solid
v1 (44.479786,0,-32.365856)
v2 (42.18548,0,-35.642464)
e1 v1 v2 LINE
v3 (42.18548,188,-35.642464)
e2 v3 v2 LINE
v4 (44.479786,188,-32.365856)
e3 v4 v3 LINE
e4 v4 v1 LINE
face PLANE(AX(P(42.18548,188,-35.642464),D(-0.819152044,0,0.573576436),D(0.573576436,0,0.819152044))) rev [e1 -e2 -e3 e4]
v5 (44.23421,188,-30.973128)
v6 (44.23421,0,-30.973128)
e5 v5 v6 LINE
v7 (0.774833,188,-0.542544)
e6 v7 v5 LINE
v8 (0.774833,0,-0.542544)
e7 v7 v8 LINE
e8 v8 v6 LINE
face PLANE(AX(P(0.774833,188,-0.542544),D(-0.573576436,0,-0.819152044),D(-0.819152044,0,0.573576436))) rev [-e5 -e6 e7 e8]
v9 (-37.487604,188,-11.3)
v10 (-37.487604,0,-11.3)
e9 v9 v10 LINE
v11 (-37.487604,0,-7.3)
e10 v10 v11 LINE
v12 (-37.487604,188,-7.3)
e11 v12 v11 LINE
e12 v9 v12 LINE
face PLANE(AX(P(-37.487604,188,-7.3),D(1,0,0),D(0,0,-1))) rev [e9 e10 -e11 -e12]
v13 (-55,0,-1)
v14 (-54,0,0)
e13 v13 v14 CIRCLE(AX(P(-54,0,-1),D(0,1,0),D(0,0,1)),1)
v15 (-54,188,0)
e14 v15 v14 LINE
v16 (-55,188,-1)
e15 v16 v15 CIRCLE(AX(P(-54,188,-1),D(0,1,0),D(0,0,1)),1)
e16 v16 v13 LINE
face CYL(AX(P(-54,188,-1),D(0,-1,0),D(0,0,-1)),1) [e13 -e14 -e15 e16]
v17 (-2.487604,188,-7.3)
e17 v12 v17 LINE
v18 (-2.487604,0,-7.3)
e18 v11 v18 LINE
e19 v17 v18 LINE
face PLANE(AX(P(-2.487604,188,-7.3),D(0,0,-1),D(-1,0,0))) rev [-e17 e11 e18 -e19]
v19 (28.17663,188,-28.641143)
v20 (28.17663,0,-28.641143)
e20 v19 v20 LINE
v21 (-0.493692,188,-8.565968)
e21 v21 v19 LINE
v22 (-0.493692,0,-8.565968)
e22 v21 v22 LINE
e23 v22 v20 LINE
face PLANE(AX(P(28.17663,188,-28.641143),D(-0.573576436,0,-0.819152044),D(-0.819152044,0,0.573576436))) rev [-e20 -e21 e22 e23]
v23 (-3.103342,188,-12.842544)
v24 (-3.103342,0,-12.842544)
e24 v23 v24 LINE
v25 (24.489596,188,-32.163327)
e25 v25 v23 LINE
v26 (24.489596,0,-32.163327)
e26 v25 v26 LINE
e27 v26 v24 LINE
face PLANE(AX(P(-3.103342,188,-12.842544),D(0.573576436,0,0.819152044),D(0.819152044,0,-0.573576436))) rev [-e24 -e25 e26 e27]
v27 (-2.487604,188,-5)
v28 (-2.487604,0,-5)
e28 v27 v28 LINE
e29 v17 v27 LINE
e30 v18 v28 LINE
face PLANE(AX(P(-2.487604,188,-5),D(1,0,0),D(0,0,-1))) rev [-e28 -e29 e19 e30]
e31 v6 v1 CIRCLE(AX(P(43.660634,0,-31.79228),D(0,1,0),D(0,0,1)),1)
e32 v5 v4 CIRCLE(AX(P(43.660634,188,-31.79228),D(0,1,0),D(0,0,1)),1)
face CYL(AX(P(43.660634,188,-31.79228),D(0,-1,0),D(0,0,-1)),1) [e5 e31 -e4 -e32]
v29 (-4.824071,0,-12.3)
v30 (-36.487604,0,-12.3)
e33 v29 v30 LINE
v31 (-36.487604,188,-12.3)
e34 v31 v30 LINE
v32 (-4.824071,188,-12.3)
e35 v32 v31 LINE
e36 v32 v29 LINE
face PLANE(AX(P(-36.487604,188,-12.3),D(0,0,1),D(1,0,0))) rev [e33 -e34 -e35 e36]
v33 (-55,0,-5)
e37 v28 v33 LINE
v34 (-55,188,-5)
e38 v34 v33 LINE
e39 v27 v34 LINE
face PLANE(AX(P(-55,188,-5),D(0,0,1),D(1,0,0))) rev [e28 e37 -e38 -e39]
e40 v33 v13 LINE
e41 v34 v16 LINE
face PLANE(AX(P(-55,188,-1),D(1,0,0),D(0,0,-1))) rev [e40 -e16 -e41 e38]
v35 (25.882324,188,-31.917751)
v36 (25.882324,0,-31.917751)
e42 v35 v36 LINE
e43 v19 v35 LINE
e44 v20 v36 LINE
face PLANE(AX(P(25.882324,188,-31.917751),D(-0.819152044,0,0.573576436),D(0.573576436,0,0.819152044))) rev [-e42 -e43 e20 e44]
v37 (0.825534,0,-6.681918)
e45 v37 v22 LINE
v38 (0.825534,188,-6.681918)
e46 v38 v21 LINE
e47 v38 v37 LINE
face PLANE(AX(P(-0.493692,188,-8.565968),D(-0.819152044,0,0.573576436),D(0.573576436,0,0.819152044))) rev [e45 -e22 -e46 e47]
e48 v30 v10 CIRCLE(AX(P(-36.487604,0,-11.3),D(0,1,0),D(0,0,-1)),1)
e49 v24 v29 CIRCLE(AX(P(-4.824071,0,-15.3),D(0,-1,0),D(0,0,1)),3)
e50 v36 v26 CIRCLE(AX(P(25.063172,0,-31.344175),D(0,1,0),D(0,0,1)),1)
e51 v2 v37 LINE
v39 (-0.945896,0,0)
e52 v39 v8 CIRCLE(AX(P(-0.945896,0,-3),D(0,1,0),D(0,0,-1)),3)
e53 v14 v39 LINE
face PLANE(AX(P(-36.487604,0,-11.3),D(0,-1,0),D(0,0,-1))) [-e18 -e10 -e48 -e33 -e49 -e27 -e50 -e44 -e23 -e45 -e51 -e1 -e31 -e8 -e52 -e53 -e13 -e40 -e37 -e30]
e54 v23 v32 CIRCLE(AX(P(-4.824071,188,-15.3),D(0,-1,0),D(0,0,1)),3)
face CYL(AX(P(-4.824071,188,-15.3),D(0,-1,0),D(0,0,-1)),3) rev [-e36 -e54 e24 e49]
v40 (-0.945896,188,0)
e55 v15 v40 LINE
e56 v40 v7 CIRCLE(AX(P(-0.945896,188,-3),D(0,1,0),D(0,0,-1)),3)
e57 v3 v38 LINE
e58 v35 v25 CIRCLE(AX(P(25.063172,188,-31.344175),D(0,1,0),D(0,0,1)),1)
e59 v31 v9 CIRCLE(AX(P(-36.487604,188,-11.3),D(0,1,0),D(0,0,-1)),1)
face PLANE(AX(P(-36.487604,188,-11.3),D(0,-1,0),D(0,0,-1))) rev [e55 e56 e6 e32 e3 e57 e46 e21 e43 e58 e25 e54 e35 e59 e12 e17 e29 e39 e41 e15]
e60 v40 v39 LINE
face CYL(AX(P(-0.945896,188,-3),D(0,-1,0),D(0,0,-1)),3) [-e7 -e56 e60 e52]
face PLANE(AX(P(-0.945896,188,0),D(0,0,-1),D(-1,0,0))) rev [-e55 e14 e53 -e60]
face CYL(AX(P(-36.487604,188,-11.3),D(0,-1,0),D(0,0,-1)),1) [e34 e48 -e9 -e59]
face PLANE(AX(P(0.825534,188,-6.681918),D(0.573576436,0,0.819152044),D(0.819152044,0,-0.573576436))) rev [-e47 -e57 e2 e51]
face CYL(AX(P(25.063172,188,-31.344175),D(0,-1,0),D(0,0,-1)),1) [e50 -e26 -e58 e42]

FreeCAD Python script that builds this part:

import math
import FreeCAD as App
import Part
import Sketcher

V = App.Vector
Q = App.Units.Quantity

doc = App.newDocument("Part")
body = doc.addObject("PartDesign::Body", "Body")

sketch1 = body.newObject("Sketcher::SketchObject", "Sketch")
sketch1.AttachmentSupport = (doc.getObject("XZ_Plane"), [""])
sketch1.MapMode = "FlatFace"
sketch1.addGeometry(Part.LineSegment(V(-54, 0, 0), V(-0.9, 0, 0)), False)
sketch1.addGeometry(Part.ArcOfCircle(Part.Circle(V(-0.9, -3, 0), V(0, 0, 1), 3), math.radians(55), math.radians(90)), False)
sketch1.addGeometry(Part.LineSegment(V(0.8, -0.5, 0), V(44.2, -31, 0)), False)
sketch1.addGeometry(Part.ArcOfCircle(Part.Circle(V(43.7, -31.8, 0), V(0, 0, 1), 1), math.radians(-35), math.radians(55)), False)
sketch1.addGeometry(Part.LineSegment(V(44.5, -32.4, 0), V(42.2, -35.6, 0)), False)
sketch1.addGeometry(Part.LineSegment(V(42.2, -35.6, 0), V(0.8, -6.7, 0)), False)
sketch1.addGeometry(Part.LineSegment(V(0.8, -6.7, 0), V(-0.5, -8.6, 0)), False)
sketch1.addGeometry(Part.LineSegment(V(-0.5, -8.6, 0), V(28.2, -28.6, 0)), False)
sketch1.addGeometry(Part.LineSegment(V(28.2, -28.6, 0), V(25.9, -31.9, 0)), False)
sketch1.addGeometry(Part.ArcOfCircle(Part.Circle(V(25.1, -31.3, 0), V(0, 0, 1), 1), math.radians(-125), math.radians(-35)), False)
sketch1.addGeometry(Part.LineSegment(V(24.5, -32.2, 0), V(-3.1, -12.8, 0)), False)
sketch1.addGeometry(Part.ArcOfCircle(Part.Circle(V(-4.8, -15.3, 0), V(0, 0, 1), 3), math.radians(55), math.radians(90)), False)
sketch1.addGeometry(Part.LineSegment(V(-4.8, -12.3, 0), V(-36.5, -12.3, 0)), False)
sketch1.addGeometry(Part.ArcOfCircle(Part.Circle(V(-36.5, -11.3, 0), V(0, 0, 1), 1), math.radians(-180), math.radians(-90)), False)
sketch1.addGeometry(Part.LineSegment(V(-37.5, -11.3, 0), V(-37.5, -7.3, 0)), False)
sketch1.addGeometry(Part.LineSegment(V(-37.5, -7.3, 0), V(-2.5, -7.3, 0)), False)
sketch1.addGeometry(Part.LineSegment(V(-2.5, -7.3, 0), V(-2.5, -5, 0)), False)
sketch1.addGeometry(Part.LineSegment(V(-2.5, -5, 0), V(-55, -5, 0)), False)
sketch1.addGeometry(Part.LineSegment(V(-55, -5, 0), V(-55, -1, 0)), False)
sketch1.addGeometry(Part.ArcOfCircle(Part.Circle(V(-54, -1, 0), V(0, 0, 1), 1), math.radians(90), math.radians(180)), False)
sketch1.addConstraint(Sketcher.Constraint("Tangent", 0, 2, 1, 2))
sketch1.addConstraint(Sketcher.Constraint("Tangent", 1, 1, 2, 1))
sketch1.addConstraint(Sketcher.Constraint("Tangent", 2, 2, 3, 2))
sketch1.addConstraint(Sketcher.Constraint("Tangent", 3, 1, 4, 1))
sketch1.addConstraint(Sketcher.Constraint("Coincident", 4, 2, 5, 1))
sketch1.addConstraint(Sketcher.Constraint("Coincident", 5, 2, 6, 1))
sketch1.addConstraint(Sketcher.Constraint("Coincident", 6, 2, 7, 1))
sketch1.addConstraint(Sketcher.Constraint("Coincident", 7, 2, 8, 1))
sketch1.addConstraint(Sketcher.Constraint("Tangent", 8, 2, 9, 2))
sketch1.addConstraint(Sketcher.Constraint("Tangent", 9, 1, 10, 1))
sketch1.addConstraint(Sketcher.Constraint("Tangent", 10, 2, 11, 1))
sketch1.addConstraint(Sketcher.Constraint("Tangent", 11, 2, 12, 1))
sketch1.addConstraint(Sketcher.Constraint("Tangent", 12, 2, 13, 2))
sketch1.addConstraint(Sketcher.Constraint("Tangent", 13, 1, 14, 1))
sketch1.addConstraint(Sketcher.Constraint("Coincident", 14, 2, 15, 1))
sketch1.addConstraint(Sketcher.Constraint("Coincident", 15, 2, 16, 1))
sketch1.addConstraint(Sketcher.Constraint("Coincident", 16, 2, 17, 1))
sketch1.addConstraint(Sketcher.Constraint("Coincident", 17, 2, 18, 1))
sketch1.addConstraint(Sketcher.Constraint("Tangent", 18, 2, 19, 2))
sketch1.addConstraint(Sketcher.Constraint("Tangent", 19, 1, 0, 1))
sketch1.addConstraint(Sketcher.Constraint("Horizontal", 0))
sketch1.addConstraint(Sketcher.Constraint("Horizontal", 12))
sketch1.addConstraint(Sketcher.Constraint("Vertical", 14))
sketch1.addConstraint(Sketcher.Constraint("Horizontal", 15))
sketch1.addConstraint(Sketcher.Constraint("Vertical", 16))
sketch1.addConstraint(Sketcher.Constraint("Horizontal", 17))
sketch1.addConstraint(Sketcher.Constraint("Vertical", 18))
sketch1.addConstraint(Sketcher.Constraint("Equal", 3, 9))
sketch1.addConstraint(Sketcher.Constraint("Equal", 1, 11))
sketch1.addConstraint(Sketcher.Constraint("Equal", 9, 13))
sketch1.addConstraint(Sketcher.Constraint("Equal", 13, 19))
sketch1.addConstraint(Sketcher.Constraint("PointOnObject", 0, 2, -1))
sketch1.addConstraint(Sketcher.Constraint("Perpendicular", 2, 4))
sketch1.addConstraint(Sketcher.Constraint("Perpendicular", 4, 5))
sketch1.addConstraint(Sketcher.Constraint("Perpendicular", 5, 6))
sketch1.addConstraint(Sketcher.Constraint("Perpendicular", 6, 7))
sketch1.addConstraint(Sketcher.Constraint("Perpendicular", 7, 8))
sketch1.addConstraint(Sketcher.Constraint("Perpendicular", 8, 10))
sketch1.addConstraint(Sketcher.Constraint("Equal", 14, 18))
sketch1.addConstraint(Sketcher.Constraint("Equal", 4, 8))
sketch1.addConstraint(Sketcher.Constraint("Radius", 1, Q("3 mm")))
sketch1.addConstraint(Sketcher.Constraint("Radius", 3, Q("1 mm")))
sketch1.addConstraint(Sketcher.Constraint("DistanceX", 15, 1, 15, 2, Q("35 mm")))
sketch1.addConstraint(Sketcher.Constraint("DistanceY", 14, 1, 14, 2, Q("4 mm")))
sketch1.addConstraint(Sketcher.Constraint("Angle", 2, Q("-35 deg")))
sketch1.addConstraint(Sketcher.Constraint("Distance", 4, Q("4 mm")))
sketch1.addConstraint(Sketcher.Constraint("Distance", 7, Q("35 mm")))
sketch1.addConstraint(Sketcher.Constraint("DistanceY", 16, 1, 16, 2, Q("2.3 mm")))
sketch1.addConstraint(Sketcher.Constraint("DistanceX", 19, 3, -1, 1, Q("54 mm")))
sketch1.addConstraint(Sketcher.Constraint("Distance", 6, Q("2.3 mm")))
sketch1.addConstraint(Sketcher.Constraint("DistanceX", 1, 1, 5, 2, Q("0.050701 mm")))
sketch1.addConstraint(Sketcher.Constraint("Distance", 5, Q("50.491171 mm")))
sketch1.addConstraint(Sketcher.Constraint("DistanceX", 0, 1, 0, 2, Q("53.054104 mm")))
sketch1.addConstraint(Sketcher.Constraint("DistanceX", 12, 2, 12, 1, Q("31.663533 mm")))
pad1 = body.newObject("PartDesign::Pad", "Pad")
pad1.Profile = sketch1
pad1.Length = 188
pad1.Reversed = True

doc.recompute()
